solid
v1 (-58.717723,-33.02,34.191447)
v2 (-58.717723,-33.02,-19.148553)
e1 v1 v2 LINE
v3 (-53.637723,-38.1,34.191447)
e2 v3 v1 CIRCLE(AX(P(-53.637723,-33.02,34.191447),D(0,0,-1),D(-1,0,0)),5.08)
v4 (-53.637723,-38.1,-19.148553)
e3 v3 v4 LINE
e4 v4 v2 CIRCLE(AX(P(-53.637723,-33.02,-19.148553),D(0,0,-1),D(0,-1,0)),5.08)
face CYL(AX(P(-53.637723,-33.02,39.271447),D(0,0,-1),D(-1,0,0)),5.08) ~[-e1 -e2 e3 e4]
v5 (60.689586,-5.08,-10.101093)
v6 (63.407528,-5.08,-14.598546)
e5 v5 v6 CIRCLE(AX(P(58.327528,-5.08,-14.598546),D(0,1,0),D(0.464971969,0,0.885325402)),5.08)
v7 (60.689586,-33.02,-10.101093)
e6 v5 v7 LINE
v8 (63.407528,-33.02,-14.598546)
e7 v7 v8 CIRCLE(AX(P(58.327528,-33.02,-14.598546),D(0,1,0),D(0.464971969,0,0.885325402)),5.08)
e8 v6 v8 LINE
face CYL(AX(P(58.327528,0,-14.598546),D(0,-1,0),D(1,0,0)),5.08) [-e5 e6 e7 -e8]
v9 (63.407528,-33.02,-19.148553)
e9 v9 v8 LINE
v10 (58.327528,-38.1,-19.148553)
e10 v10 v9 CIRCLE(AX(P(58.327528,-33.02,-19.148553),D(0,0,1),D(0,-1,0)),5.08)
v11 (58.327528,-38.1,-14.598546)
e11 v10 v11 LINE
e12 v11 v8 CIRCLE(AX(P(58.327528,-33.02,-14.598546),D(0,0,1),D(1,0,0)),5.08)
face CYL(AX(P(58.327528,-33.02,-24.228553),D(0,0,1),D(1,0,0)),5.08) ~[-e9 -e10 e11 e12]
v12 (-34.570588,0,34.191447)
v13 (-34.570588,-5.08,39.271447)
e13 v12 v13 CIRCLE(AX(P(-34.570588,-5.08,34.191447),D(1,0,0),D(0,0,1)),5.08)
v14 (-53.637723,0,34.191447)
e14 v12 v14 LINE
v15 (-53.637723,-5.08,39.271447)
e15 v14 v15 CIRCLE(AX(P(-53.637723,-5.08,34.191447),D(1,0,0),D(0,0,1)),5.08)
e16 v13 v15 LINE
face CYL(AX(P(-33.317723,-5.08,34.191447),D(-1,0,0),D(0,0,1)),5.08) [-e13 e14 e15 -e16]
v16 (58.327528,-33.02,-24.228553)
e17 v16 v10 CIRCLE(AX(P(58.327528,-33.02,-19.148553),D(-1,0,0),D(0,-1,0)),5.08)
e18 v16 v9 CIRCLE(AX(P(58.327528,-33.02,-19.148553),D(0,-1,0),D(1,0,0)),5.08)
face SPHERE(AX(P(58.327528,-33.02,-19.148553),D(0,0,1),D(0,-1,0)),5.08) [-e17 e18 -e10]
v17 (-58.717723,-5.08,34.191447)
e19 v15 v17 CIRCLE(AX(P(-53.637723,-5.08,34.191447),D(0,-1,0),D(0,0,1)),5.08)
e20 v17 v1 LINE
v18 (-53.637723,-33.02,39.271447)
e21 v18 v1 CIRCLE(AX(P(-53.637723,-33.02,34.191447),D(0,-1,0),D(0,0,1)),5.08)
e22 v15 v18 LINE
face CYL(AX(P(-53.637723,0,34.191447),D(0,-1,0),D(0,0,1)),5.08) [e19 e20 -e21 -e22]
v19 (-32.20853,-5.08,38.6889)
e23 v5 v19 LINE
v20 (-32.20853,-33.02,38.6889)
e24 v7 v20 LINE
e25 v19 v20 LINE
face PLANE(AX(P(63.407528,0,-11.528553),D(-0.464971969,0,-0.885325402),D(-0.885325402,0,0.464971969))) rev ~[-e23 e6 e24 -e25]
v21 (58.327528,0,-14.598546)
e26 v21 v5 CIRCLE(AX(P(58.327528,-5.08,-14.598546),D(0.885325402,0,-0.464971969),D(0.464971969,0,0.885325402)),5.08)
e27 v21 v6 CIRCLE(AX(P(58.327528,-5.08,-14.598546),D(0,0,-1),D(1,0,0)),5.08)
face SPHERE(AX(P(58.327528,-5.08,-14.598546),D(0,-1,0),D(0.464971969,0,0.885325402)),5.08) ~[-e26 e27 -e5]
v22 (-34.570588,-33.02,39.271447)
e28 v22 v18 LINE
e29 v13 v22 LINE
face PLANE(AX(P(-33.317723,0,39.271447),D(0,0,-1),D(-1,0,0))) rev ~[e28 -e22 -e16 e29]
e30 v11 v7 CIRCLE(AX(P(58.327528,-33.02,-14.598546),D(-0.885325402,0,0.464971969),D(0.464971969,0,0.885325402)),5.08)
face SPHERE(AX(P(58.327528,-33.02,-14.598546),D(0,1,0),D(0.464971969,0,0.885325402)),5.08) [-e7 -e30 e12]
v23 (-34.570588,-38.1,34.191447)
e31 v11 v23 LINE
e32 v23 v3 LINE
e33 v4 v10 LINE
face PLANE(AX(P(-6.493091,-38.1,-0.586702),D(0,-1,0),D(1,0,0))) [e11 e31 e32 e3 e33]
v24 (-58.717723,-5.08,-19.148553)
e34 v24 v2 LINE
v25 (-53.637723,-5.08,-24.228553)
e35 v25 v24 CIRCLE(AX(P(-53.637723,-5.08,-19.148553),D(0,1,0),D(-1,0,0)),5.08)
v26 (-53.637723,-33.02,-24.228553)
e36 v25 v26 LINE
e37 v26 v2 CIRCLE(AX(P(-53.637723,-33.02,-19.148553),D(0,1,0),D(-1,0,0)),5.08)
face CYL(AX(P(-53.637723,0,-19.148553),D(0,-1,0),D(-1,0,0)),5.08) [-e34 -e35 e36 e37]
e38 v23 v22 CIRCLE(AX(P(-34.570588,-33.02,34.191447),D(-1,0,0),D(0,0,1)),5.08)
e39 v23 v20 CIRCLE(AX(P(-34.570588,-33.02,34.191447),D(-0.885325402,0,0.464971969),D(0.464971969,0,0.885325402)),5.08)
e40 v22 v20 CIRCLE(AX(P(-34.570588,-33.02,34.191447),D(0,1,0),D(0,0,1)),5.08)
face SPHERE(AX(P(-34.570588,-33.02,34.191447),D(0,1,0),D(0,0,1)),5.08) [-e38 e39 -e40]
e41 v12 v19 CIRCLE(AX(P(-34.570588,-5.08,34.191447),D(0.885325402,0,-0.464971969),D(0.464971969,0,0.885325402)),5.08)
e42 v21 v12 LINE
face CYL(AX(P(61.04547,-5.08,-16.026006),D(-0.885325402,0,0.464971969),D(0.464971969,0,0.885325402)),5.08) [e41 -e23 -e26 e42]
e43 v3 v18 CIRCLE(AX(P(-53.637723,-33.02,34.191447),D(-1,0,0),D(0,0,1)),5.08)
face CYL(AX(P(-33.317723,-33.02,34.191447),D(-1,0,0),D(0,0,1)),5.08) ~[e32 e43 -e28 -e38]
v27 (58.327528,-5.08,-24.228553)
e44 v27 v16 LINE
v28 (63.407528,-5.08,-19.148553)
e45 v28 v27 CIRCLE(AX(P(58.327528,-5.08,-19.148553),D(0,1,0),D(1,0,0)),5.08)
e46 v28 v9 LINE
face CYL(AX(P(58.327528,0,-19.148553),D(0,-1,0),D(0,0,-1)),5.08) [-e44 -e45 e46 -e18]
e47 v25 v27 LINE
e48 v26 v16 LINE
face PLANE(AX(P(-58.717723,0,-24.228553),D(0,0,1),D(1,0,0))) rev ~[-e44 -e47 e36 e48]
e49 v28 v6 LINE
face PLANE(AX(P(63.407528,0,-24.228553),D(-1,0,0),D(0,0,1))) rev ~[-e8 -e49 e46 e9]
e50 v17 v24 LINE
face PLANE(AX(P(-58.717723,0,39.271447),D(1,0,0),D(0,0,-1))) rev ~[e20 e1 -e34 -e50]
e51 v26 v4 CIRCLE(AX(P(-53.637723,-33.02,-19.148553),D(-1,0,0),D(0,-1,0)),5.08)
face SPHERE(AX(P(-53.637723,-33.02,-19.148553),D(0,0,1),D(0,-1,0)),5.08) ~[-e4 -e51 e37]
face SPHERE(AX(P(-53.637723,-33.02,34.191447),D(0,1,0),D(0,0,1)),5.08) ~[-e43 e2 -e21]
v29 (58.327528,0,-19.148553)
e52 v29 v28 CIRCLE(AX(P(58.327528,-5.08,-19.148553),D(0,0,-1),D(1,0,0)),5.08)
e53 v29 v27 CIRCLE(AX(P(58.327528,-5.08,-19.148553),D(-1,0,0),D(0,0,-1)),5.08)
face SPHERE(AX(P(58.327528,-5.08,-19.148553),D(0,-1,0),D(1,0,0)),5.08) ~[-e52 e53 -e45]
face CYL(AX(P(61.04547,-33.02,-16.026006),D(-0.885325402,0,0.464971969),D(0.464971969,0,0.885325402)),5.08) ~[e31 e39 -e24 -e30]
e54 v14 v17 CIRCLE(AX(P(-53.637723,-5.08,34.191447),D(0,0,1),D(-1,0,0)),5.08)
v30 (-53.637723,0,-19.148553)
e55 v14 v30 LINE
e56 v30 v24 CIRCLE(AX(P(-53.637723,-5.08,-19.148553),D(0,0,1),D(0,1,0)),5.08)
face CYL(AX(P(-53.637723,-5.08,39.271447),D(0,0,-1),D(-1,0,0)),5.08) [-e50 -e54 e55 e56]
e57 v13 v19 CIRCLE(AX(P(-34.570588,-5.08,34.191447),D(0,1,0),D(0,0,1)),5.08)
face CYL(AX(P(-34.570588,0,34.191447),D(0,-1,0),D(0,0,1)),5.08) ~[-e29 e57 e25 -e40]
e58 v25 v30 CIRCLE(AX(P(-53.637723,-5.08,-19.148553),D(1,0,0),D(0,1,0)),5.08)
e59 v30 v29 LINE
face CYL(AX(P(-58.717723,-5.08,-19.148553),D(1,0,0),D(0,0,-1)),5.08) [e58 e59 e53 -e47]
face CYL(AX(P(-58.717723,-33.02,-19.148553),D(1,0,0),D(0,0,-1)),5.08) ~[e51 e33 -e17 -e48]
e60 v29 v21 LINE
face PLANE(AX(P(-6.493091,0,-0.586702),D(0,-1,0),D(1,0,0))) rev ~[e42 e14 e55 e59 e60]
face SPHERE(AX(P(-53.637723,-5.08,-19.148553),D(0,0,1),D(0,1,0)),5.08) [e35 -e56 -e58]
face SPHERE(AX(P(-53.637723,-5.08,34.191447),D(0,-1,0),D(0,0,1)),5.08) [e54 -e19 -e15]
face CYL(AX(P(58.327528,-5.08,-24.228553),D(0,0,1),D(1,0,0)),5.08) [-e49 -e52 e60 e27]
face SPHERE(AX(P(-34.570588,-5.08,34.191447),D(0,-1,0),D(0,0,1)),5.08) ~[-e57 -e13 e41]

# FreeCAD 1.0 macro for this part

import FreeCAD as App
import Part
import Sketcher
Q = App.Units.Quantity


def add_polygon(sketch, points):
    """Adds a closed chain of lines whose ends are joined by coincident constraints."""
    first, n = sketch.GeometryCount, len(points)
    for a, b in zip(points, points[1:] + points[:1]):
        sketch.addGeometry(Part.LineSegment(App.Vector(*a, 0), App.Vector(*b, 0)), False)
    for i in range(n):
        sketch.addConstraint(Sketcher.Constraint("Coincident", first + i, 2, first + (i + 1) % n, 1))

doc = App.newDocument("Part")
body = doc.addObject("PartDesign::Body", "Body")

# Sketch on XZ plane
sketch1 = body.newObject("Sketcher::SketchObject", "Sketch")
sketch1.AttachmentSupport = (doc.getObject("XZ_Plane"), [""])
sketch1.MapMode = "FlatFace"
add_polygon(sketch1, [(-33.317723, 39.271447), (-58.717723, 39.271447), (-58.717723, -24.228553), (63.407528, -24.228553), (63.407528, -11.528553)])  # lines 0-4
sketch1.addConstraint(Sketcher.Constraint("Horizontal", 0))
sketch1.addConstraint(Sketcher.Constraint("Vertical", 1))
sketch1.addConstraint(Sketcher.Constraint("Horizontal", 2))
sketch1.addConstraint(Sketcher.Constraint("Vertical", 3))
sketch1.addConstraint(Sketcher.Constraint("DistanceX", 0, 2, 0, 1, Q("1 in")))
sketch1.addConstraint(Sketcher.Constraint("DistanceY", 1, 2, 1, 1, Q("2.5 in")))
sketch1.addConstraint(Sketcher.Constraint("DistanceY", 3, 1, 3, 2, Q("0.5 in")))
sketch1.addConstraint(Sketcher.Constraint("DistanceX", 2, 1, 2, 2, 122.125251))
sketch1.addConstraint(Sketcher.Constraint("DistanceX", 0, 2, -1, 1, 58.717723))
sketch1.addConstraint(Sketcher.Constraint("DistanceY", -1, 1, 0, 2, 39.271447))
pad1 = body.newObject("PartDesign::Pad", "Pad")
pad1.Profile = sketch1
pad1.Length = Q("1.5 in")
doc.recompute()

fillet = body.newObject("PartDesign::Fillet", "Fillet")
fillet.Base = (pad1, ["Edge1"])
fillet.UseAllEdges = True
fillet.Radius = Q("0.2 in")

doc.recompute()
